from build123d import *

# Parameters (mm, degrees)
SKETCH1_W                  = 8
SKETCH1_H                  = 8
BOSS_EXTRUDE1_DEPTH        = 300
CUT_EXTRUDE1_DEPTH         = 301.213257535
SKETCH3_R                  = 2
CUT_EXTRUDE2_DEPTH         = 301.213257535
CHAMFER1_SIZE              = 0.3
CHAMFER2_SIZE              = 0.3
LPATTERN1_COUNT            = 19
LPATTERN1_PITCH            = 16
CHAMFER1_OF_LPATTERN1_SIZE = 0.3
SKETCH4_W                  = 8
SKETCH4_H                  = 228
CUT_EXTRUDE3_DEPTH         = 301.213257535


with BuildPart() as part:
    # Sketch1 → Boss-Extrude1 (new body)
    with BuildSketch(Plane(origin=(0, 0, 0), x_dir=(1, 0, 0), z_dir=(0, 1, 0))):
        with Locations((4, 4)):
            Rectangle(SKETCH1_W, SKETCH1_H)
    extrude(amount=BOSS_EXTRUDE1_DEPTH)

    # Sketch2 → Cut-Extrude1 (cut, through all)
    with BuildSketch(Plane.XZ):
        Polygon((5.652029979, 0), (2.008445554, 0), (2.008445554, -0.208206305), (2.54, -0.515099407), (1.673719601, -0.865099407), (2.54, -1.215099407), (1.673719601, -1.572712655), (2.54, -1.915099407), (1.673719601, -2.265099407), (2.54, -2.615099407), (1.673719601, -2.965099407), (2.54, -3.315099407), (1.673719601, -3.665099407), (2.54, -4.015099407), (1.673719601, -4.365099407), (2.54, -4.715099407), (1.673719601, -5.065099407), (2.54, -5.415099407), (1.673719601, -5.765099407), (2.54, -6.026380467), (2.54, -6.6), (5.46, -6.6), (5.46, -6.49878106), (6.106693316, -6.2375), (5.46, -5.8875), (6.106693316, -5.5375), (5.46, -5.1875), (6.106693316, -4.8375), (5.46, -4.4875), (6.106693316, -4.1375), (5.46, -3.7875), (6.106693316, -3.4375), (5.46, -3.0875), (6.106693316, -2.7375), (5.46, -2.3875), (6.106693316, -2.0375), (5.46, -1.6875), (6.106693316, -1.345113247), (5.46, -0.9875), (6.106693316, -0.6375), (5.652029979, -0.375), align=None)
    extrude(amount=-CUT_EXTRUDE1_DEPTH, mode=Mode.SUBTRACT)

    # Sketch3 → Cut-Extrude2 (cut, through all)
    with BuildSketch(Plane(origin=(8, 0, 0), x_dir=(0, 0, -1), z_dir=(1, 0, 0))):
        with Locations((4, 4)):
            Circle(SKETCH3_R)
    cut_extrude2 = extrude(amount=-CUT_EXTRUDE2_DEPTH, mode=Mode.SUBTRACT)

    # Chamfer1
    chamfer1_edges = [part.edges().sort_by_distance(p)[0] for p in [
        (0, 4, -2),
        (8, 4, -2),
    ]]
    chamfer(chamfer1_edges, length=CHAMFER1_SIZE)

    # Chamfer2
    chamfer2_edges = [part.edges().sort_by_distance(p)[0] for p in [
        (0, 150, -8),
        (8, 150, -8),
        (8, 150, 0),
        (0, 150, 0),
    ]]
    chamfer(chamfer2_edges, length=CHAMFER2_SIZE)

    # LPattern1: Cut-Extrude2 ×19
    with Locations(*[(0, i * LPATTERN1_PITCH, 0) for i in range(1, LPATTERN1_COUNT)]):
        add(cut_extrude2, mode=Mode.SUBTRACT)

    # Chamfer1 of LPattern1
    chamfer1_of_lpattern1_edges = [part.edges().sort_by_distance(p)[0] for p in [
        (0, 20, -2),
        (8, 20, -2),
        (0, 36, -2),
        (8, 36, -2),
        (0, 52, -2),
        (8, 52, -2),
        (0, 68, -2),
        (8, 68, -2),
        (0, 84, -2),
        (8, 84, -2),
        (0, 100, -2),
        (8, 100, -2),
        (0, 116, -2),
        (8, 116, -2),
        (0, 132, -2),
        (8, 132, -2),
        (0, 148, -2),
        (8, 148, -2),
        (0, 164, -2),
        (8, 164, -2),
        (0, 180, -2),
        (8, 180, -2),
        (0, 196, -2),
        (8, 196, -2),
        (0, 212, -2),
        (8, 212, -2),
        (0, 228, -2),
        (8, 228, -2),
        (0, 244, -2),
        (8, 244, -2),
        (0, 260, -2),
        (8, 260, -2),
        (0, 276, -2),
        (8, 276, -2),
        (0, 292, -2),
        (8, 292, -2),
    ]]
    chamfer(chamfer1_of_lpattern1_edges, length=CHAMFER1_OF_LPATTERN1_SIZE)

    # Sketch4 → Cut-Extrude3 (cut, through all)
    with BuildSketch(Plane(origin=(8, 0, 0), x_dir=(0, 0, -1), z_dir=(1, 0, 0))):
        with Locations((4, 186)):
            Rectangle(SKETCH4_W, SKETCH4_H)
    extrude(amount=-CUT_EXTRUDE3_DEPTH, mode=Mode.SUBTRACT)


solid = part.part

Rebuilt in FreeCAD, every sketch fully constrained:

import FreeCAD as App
import Part
import Sketcher

V = App.Vector
Q = App.Units.Quantity


def edges_at(feature, points):
    """Names of the edges that pass closest to the given points."""
    edges = feature.Shape.Edges
    near = lambda p: min(range(len(edges)), key=lambda i: edges[i].distToShape(Part.Vertex(*p))[0])
    return sorted({f"Edge{near(p) + 1}" for p in points})

doc = App.newDocument("Part")
body = doc.addObject("PartDesign::Body", "Body")

sketch1 = body.newObject("Sketcher::SketchObject", "Sketch")
sketch1.AttachmentSupport = (doc.getObject("XZ_Plane"), [""])
sketch1.MapMode = "FlatFace"
sketch1.addGeometry([
    Part.LineSegment(V(0, -8, 0), V(0, 0, 0)),
    Part.LineSegment(V(0, 0, 0), V(8, 0, 0)),
    Part.LineSegment(V(8, 0, 0), V(8, -8, 0)),
    Part.LineSegment(V(8, -8, 0), V(0, -8, 0)),
], False)
sketch1.addConstraint([
    Sketcher.Constraint("Coincident", 0, 2, 1, 1),
    Sketcher.Constraint("Coincident", 1, 2, 2, 1),
    Sketcher.Constraint("Coincident", 2, 2, 3, 1),
    Sketcher.Constraint("Coincident", 3, 2, 0, 1),
    Sketcher.Constraint("Vertical", 0),
    Sketcher.Constraint("Horizontal", 1),
    Sketcher.Constraint("Vertical", 2),
    Sketcher.Constraint("Horizontal", 3),
    Sketcher.Constraint("Coincident", 0, 2, -1, 1),
    Sketcher.Constraint("Equal", 3, 0),
    Sketcher.Constraint("DistanceX", 1, 1, 1, 2, 8.0),
])
pad1 = body.newObject("PartDesign::Pad", "Pad")
pad1.Profile = sketch1
pad1.Length = 300
pad1.Reversed = True

sketch2 = body.newObject("Sketcher::SketchObject", "Sketch001")
sketch2.AttachmentSupport = (doc.getObject("XZ_Plane"), [""])
sketch2.MapMode = "FlatFace"
sketch2.addGeometry([
    Part.LineSegment(V(5.65, 0, 0), V(2.01, 0, 0)),
    Part.LineSegment(V(2.01, 0, 0), V(2.01, -0.21, 0)),
    Part.LineSegment(V(2.01, -0.21, 0), V(2.54, -0.52, 0)),
    Part.LineSegment(V(2.54, -0.52, 0), V(1.67, -0.87, 0)),
    Part.LineSegment(V(1.67, -0.87, 0), V(2.54, -1.22, 0)),
    Part.LineSegment(V(2.54, -1.22, 0), V(1.67, -1.57, 0)),
    Part.LineSegment(V(1.67, -1.57, 0), V(2.54, -1.92, 0)),
    Part.LineSegment(V(2.54, -1.92, 0), V(1.67, -2.27, 0)),
    Part.LineSegment(V(1.67, -2.27, 0), V(2.54, -2.62, 0)),
    Part.LineSegment(V(2.54, -2.62, 0), V(1.67, -2.97, 0)),
    Part.LineSegment(V(1.67, -2.97, 0), V(2.54, -3.32, 0)),
    Part.LineSegment(V(2.54, -3.32, 0), V(1.67, -3.67, 0)),
    Part.LineSegment(V(1.67, -3.67, 0), V(2.54, -4.02, 0)),
    Part.LineSegment(V(2.54, -4.02, 0), V(1.67, -4.37, 0)),
    Part.LineSegment(V(1.67, -4.37, 0), V(2.54, -4.72, 0)),
    Part.LineSegment(V(2.54, -4.72, 0), V(1.67, -5.07, 0)),
    Part.LineSegment(V(1.67, -5.07, 0), V(2.54, -5.42, 0)),
    Part.LineSegment(V(2.54, -5.42, 0), V(1.67, -5.77, 0)),
    Part.LineSegment(V(1.67, -5.77, 0), V(2.54, -6.03, 0)),
    Part.LineSegment(V(2.54, -6.03, 0), V(2.54, -6.6, 0)),
    Part.LineSegment(V(2.54, -6.6, 0), V(5.46, -6.6, 0)),
    Part.LineSegment(V(5.46, -6.6, 0), V(5.46, -6.5, 0)),
    Part.LineSegment(V(5.46, -6.5, 0), V(6.11, -6.24, 0)),
    Part.LineSegment(V(6.11, -6.24, 0), V(5.46, -5.89, 0)),
    Part.LineSegment(V(5.46, -5.89, 0), V(6.11, -5.54, 0)),
    Part.LineSegment(V(6.11, -5.54, 0), V(5.46, -5.19, 0)),
    Part.LineSegment(V(5.46, -5.19, 0), V(6.11, -4.84, 0)),
    Part.LineSegment(V(6.11, -4.84, 0), V(5.46, -4.49, 0)),
    Part.LineSegment(V(5.46, -4.49, 0), V(6.11, -4.14, 0)),
    Part.LineSegment(V(6.11, -4.14, 0), V(5.46, -3.79, 0)),
    Part.LineSegment(V(5.46, -3.79, 0), V(6.11, -3.44, 0)),
    Part.LineSegment(V(6.11, -3.44, 0), V(5.46, -3.09, 0)),
    Part.LineSegment(V(5.46, -3.09, 0), V(6.11, -2.74, 0)),
    Part.LineSegment(V(6.11, -2.74, 0), V(5.46, -2.39, 0)),
    Part.LineSegment(V(5.46, -2.39, 0), V(6.11, -2.04, 0)),
    Part.LineSegment(V(6.11, -2.04, 0), V(5.46, -1.69, 0)),
    Part.LineSegment(V(5.46, -1.69, 0), V(6.11, -1.35, 0)),
    Part.LineSegment(V(6.11, -1.35, 0), V(5.46, -0.99, 0)),
    Part.LineSegment(V(5.46, -0.99, 0), V(6.11, -0.64, 0)),
    Part.LineSegment(V(6.11, -0.64, 0), V(5.65, -0.38, 0)),
    Part.LineSegment(V(5.65, -0.38, 0), V(5.65, 0, 0)),
], False)
sketch2.addConstraint([
    Sketcher.Constraint("Coincident", 0, 2, 1, 1),
    Sketcher.Constraint("Coincident", 1, 2, 2, 1),
    Sketcher.Constraint("Coincident", 2, 2, 3, 1),
    Sketcher.Constraint("Coincident", 3, 2, 4, 1),
    Sketcher.Constraint("Coincident", 4, 2, 5, 1),
    Sketcher.Constraint("Coincident", 5, 2, 6, 1),
    Sketcher.Constraint("Coincident", 6, 2, 7, 1),
    Sketcher.Constraint("Coincident", 7, 2, 8, 1),
    Sketcher.Constraint("Coincident", 8, 2, 9, 1),
    Sketcher.Constraint("Coincident", 9, 2, 10, 1),
    Sketcher.Constraint("Coincident", 10, 2, 11, 1),
    Sketcher.Constraint("Coincident", 11, 2, 12, 1),
    Sketcher.Constraint("Coincident", 12, 2, 13, 1),
    Sketcher.Constraint("Coincident", 13, 2, 14, 1),
    Sketcher.Constraint("Coincident", 14, 2, 15, 1),
    Sketcher.Constraint("Coincident", 15, 2, 16, 1),
    Sketcher.Constraint("Coincident", 16, 2, 17, 1),
    Sketcher.Constraint("Coincident", 17, 2, 18, 1),
    Sketcher.Constraint("Coincident", 18, 2, 19, 1),
    Sketcher.Constraint("Coincident", 19, 2, 20, 1),
    Sketcher.Constraint("Coincident", 20, 2, 21, 1),
    Sketcher.Constraint("Coincident", 21, 2, 22, 1),
    Sketcher.Constraint("Coincident", 22, 2, 23, 1),
    Sketcher.Constraint("Coincident", 23, 2, 24, 1),
    Sketcher.Constraint("Coincident", 24, 2, 25, 1),
    Sketcher.Constraint("Coincident", 25, 2, 26, 1),
    Sketcher.Constraint("Coincident", 26, 2, 27, 1),
    Sketcher.Constraint("Coincident", 27, 2, 28, 1),
    Sketcher.Constraint("Coincident", 28, 2, 29, 1),
    Sketcher.Constraint("Coincident", 29, 2, 30, 1),
    Sketcher.Constraint("Coincident", 30, 2, 31, 1),
    Sketcher.Constraint("Coincident", 31, 2, 32, 1),
    Sketcher.Constraint("Coincident", 32, 2, 33, 1),
    Sketcher.Constraint("Coincident", 33, 2, 34, 1),
    Sketcher.Constraint("Coincident", 34, 2, 35, 1),
    Sketcher.Constraint("Coincident", 35, 2, 36, 1),
    Sketcher.Constraint("Coincident", 36, 2, 37, 1),
    Sketcher.Constraint("Coincident", 37, 2, 38, 1),
    Sketcher.Constraint("Coincident", 38, 2, 39, 1),
    Sketcher.Constraint("Coincident", 39, 2, 40, 1),
    Sketcher.Constraint("Coincident", 40, 2, 0, 1),
    Sketcher.Constraint("Horizontal", 0),
    Sketcher.Constraint("Vertical", 1),
    Sketcher.Constraint("Vertical", 19),
    Sketcher.Constraint("Horizontal", 20),
    Sketcher.Constraint("Vertical", 21),
    Sketcher.Constraint("Vertical", 40),
    Sketcher.Constraint("PointOnObject", 0, 2, -1),
    Sketcher.Constraint("Parallel", 3, 7),
    Sketcher.Constraint("Parallel", 4, 8),
    Sketcher.Constraint("Parallel", 7, 9),
    Sketcher.Constraint("Parallel", 8, 10),
    Sketcher.Constraint("Parallel", 9, 11),
    Sketcher.Constraint("Parallel", 10, 12),
    Sketcher.Constraint("Parallel", 11, 13),
    Sketcher.Constraint("Parallel", 12, 14),
    Sketcher.Constraint("Parallel", 13, 15),
    Sketcher.Constraint("Parallel", 14, 16),
    Sketcher.Constraint("Parallel", 15, 17),
    Sketcher.Constraint("Parallel", 17, 22),
    Sketcher.Constraint("Parallel", 23, 25),
    Sketcher.Constraint("Parallel", 24, 26),
    Sketcher.Constraint("Parallel", 25, 27),
    Sketcher.Constraint("Parallel", 26, 28),
    Sketcher.Constraint("Parallel", 27, 29),
    Sketcher.Constraint("Parallel", 28, 30),
    Sketcher.Constraint("Parallel", 29, 31),
    Sketcher.Constraint("Parallel", 30, 32),
    Sketcher.Constraint("Parallel", 31, 33),
    Sketcher.Constraint("Parallel", 32, 34),
    Sketcher.Constraint("Parallel", 33, 35),
    Sketcher.Constraint("Parallel", 34, 38),
    Sketcher.Constraint("Parallel", 2, 39),
    Sketcher.Constraint("Vertical", 2, 2, 4, 2),
    Sketcher.Constraint("Vertical", 3, 2, 5, 2),
    Sketcher.Constraint("Vertical", 4, 2, 6, 2),
    Sketcher.Constraint("Vertical", 5, 2, 7, 2),
    Sketcher.Constraint("Vertical", 6, 2, 8, 2),
    Sketcher.Constraint("Vertical", 7, 2, 9, 2),
    Sketcher.Constraint("Vertical", 8, 2, 10, 2),
    Sketcher.Constraint("Vertical", 9, 2, 11, 2),
    Sketcher.Constraint("Vertical", 10, 2, 12, 2),
    Sketcher.Constraint("Vertical", 11, 2, 13, 2),
    Sketcher.Constraint("Vertical", 12, 2, 14, 2),
    Sketcher.Constraint("Vertical", 13, 2, 15, 2),
    Sketcher.Constraint("Vertical", 14, 2, 16, 2),
    Sketcher.Constraint("Vertical", 15, 2, 17, 2),
    Sketcher.Constraint("Vertical", 16, 2, 18, 2),
    Sketcher.Constraint("Vertical", 21, 2, 23, 2),
    Sketcher.Constraint("Vertical", 22, 2, 24, 2),
    Sketcher.Constraint("Vertical", 23, 2, 25, 2),
    Sketcher.Constraint("Vertical", 24, 2, 26, 2),
    Sketcher.Constraint("Vertical", 25, 2, 27, 2),
    Sketcher.Constraint("Vertical", 26, 2, 28, 2),
    Sketcher.Constraint("Vertical", 27, 2, 29, 2),
    Sketcher.Constraint("Vertical", 28, 2, 30, 2),
    Sketcher.Constraint("Vertical", 29, 2, 31, 2),
    Sketcher.Constraint("Vertical", 30, 2, 32, 2),
    Sketcher.Constraint("Vertical", 31, 2, 33, 2),
    Sketcher.Constraint("Vertical", 32, 2, 34, 2),
    Sketcher.Constraint("Vertical", 33, 2, 35, 2),
    Sketcher.Constraint("Vertical", 34, 2, 36, 2),
    Sketcher.Constraint("Vertical", 35, 2, 37, 2),
    Sketcher.Constraint("Vertical", 36, 2, 38, 2),
    Sketcher.Constraint("Equal", 3, 4),
    Sketcher.Constraint("Equal", 23, 24),
    Sketcher.Constraint("Angle", 2, Q("-30 deg")),
    Sketcher.Constraint("Angle", 3, Q("-158 deg")),
    Sketcher.Constraint("DistanceX", 20, 1, 20, 2, 2.92),
    Sketcher.Constraint("DistanceY", 19, 2, -1, 1, 6.6),
    Sketcher.Constraint("DistanceY", 4, 2, 2, 2, 0.7),
    Sketcher.Constraint("DistanceY", 6, 2, 4, 2, 0.7),
    Sketcher.Constraint("DistanceY", 22, 2, 24, 2, 0.7),
    Sketcher.Constraint("DistanceY", 35, 2, 37, 2, 0.7),
    Sketcher.Constraint("DistanceY", 40, 1, 40, 2, 0.375),
    Sketcher.Constraint("DistanceX", -1, 1, 2, 2, 2.54),
    Sketcher.Constraint("Distance", 39, 0.525),
    Sketcher.Constraint("DistanceY", 19, 2, 19, 1, 0.57362),
    Sketcher.Constraint("DistanceY", 21, 1, 21, 2, 0.101219),
    Sketcher.Constraint("DistanceY", 2, 2, -1, 1, 0.515099),
    Sketcher.Constraint("Distance", 6, 0.931488),
    Sketcher.Constraint("Distance", 36, 0.731738),
    Sketcher.Constraint("DistanceX", 0, 2, 0, 1, 3.643584),
])
pocket1 = body.newObject("PartDesign::Pocket", "Pocket")
pocket1.Profile = sketch2
pocket1.Type = "ThroughAll"

sketch3 = body.newObject("Sketcher::SketchObject", "Sketch002")
sketch3.AttachmentSupport = (doc.getObject("YZ_Plane"), [""])
sketch3.MapMode = "FlatFace"
sketch3.AttachmentOffset = App.Placement(V(0, 0, 8), App.Rotation())
sketch3.addGeometry(Part.Circle(V(4, -4, 0), V(0, 0, 1), 2), False)
sketch3.addConstraint([
    Sketcher.Constraint("Diameter", 0, 4.0),
    Sketcher.Constraint("DistanceX", -1, 1, 0, 3, 4.0),
    Sketcher.Constraint("DistanceY", 0, 3, -1, 1, 4.0),
])
pocket2 = body.newObject("PartDesign::Pocket", "Pocket001")
pocket2.Profile = sketch3
pocket2.Type = "ThroughAll"
doc.recompute()

chamfer = body.newObject("PartDesign::Chamfer", "Chamfer")
chamfer.Base = (pocket2, edges_at(pocket2, [(0, 4, -2), (8, 4, -2)]))
chamfer.Size = 0.3
doc.recompute()

chamfer2 = body.newObject("PartDesign::Chamfer", "Chamfer001")
chamfer2.Base = (chamfer, edges_at(chamfer, [
    (0, 150, -8),
    (8, 150, -8),
    (8, 150, 0),
    (0, 150, 0),
]))
chamfer2.Size = 0.3
doc.recompute()

linearpattern = body.newObject("PartDesign::LinearPattern", "LinearPattern")
linearpattern.Originals = [pocket2]
linearpattern.Direction = (doc.getObject("Y_Axis"), [""])
linearpattern.Mode = "offset"
linearpattern.Offset = 16
linearpattern.Occurrences = 19
body.Tip = linearpattern
doc.recompute()

chamfer3 = body.newObject("PartDesign::Chamfer", "Chamfer002")
chamfer3.Base = (linearpattern, edges_at(linearpattern, [
    (0, 20, -2),
    (8, 20, -2),
    (0, 36, -2),
    (8, 36, -2),
    (0, 52, -2),
    (8, 52, -2),
    (0, 68, -2),
    (8, 68, -2),
    (0, 84, -2),
    (8, 84, -2),
    (0, 100, -2),
    (8, 100, -2),
    (0, 116, -2),
    (8, 116, -2),
    (0, 132, -2),
    (8, 132, -2),
    (0, 148, -2),
    (8, 148, -2),
    (0, 164, -2),
    (8, 164, -2),
    (0, 180, -2),
    (8, 180, -2),
    (0, 196, -2),
    (8, 196, -2),
    (0, 212, -2),
    (8, 212, -2),
    (0, 228, -2),
    (8, 228, -2),
    (0, 244, -2),
    (8, 244, -2),
    (0, 260, -2),
    (8, 260, -2),
    (0, 276, -2),
    (8, 276, -2),
    (0, 292, -2),
    (8, 292, -2),
]))
chamfer3.Size = 0.3

sketch4 = body.newObject("Sketcher::SketchObject", "Sketch003")
sketch4.AttachmentSupport = (doc.getObject("YZ_Plane"), [""])
sketch4.MapMode = "FlatFace"
sketch4.AttachmentOffset = App.Placement(V(0, 0, 8), App.Rotation())
sketch4.addGeometry([
    Part.LineSegment(V(300, 0, 0), V(72, 0, 0)),
    Part.LineSegment(V(72, 0, 0), V(72, -8, 0)),
    Part.LineSegment(V(72, -8, 0), V(300, -8, 0)),
    Part.LineSegment(V(300, -8, 0), V(300, 0, 0)),
], False)
sketch4.addConstraint([
    Sketcher.Constraint("Coincident", 0, 2, 1, 1),
    Sketcher.Constraint("Coincident", 1, 2, 2, 1),
    Sketcher.Constraint("Coincident", 2, 2, 3, 1),
    Sketcher.Constraint("Coincident", 3, 2, 0, 1),
    Sketcher.Constraint("Horizontal", 0),
    Sketcher.Constraint("Vertical", 1),
    Sketcher.Constraint("Horizontal", 2),
    Sketcher.Constraint("Vertical", 3),
    Sketcher.Constraint("PointOnObject", 0, 2, -1),
    Sketcher.Constraint("DistanceX", 0, 2, 0, 1, 228.0),
    Sketcher.Constraint("DistanceY", 1, 2, 1, 1, 8.0),
    Sketcher.Constraint("DistanceX", -1, 1, 0, 2, 72.0),
])
pocket3 = body.newObject("PartDesign::Pocket", "Pocket002")
pocket3.Profile = sketch4
pocket3.Type = "ThroughAll"

doc.recompute()
